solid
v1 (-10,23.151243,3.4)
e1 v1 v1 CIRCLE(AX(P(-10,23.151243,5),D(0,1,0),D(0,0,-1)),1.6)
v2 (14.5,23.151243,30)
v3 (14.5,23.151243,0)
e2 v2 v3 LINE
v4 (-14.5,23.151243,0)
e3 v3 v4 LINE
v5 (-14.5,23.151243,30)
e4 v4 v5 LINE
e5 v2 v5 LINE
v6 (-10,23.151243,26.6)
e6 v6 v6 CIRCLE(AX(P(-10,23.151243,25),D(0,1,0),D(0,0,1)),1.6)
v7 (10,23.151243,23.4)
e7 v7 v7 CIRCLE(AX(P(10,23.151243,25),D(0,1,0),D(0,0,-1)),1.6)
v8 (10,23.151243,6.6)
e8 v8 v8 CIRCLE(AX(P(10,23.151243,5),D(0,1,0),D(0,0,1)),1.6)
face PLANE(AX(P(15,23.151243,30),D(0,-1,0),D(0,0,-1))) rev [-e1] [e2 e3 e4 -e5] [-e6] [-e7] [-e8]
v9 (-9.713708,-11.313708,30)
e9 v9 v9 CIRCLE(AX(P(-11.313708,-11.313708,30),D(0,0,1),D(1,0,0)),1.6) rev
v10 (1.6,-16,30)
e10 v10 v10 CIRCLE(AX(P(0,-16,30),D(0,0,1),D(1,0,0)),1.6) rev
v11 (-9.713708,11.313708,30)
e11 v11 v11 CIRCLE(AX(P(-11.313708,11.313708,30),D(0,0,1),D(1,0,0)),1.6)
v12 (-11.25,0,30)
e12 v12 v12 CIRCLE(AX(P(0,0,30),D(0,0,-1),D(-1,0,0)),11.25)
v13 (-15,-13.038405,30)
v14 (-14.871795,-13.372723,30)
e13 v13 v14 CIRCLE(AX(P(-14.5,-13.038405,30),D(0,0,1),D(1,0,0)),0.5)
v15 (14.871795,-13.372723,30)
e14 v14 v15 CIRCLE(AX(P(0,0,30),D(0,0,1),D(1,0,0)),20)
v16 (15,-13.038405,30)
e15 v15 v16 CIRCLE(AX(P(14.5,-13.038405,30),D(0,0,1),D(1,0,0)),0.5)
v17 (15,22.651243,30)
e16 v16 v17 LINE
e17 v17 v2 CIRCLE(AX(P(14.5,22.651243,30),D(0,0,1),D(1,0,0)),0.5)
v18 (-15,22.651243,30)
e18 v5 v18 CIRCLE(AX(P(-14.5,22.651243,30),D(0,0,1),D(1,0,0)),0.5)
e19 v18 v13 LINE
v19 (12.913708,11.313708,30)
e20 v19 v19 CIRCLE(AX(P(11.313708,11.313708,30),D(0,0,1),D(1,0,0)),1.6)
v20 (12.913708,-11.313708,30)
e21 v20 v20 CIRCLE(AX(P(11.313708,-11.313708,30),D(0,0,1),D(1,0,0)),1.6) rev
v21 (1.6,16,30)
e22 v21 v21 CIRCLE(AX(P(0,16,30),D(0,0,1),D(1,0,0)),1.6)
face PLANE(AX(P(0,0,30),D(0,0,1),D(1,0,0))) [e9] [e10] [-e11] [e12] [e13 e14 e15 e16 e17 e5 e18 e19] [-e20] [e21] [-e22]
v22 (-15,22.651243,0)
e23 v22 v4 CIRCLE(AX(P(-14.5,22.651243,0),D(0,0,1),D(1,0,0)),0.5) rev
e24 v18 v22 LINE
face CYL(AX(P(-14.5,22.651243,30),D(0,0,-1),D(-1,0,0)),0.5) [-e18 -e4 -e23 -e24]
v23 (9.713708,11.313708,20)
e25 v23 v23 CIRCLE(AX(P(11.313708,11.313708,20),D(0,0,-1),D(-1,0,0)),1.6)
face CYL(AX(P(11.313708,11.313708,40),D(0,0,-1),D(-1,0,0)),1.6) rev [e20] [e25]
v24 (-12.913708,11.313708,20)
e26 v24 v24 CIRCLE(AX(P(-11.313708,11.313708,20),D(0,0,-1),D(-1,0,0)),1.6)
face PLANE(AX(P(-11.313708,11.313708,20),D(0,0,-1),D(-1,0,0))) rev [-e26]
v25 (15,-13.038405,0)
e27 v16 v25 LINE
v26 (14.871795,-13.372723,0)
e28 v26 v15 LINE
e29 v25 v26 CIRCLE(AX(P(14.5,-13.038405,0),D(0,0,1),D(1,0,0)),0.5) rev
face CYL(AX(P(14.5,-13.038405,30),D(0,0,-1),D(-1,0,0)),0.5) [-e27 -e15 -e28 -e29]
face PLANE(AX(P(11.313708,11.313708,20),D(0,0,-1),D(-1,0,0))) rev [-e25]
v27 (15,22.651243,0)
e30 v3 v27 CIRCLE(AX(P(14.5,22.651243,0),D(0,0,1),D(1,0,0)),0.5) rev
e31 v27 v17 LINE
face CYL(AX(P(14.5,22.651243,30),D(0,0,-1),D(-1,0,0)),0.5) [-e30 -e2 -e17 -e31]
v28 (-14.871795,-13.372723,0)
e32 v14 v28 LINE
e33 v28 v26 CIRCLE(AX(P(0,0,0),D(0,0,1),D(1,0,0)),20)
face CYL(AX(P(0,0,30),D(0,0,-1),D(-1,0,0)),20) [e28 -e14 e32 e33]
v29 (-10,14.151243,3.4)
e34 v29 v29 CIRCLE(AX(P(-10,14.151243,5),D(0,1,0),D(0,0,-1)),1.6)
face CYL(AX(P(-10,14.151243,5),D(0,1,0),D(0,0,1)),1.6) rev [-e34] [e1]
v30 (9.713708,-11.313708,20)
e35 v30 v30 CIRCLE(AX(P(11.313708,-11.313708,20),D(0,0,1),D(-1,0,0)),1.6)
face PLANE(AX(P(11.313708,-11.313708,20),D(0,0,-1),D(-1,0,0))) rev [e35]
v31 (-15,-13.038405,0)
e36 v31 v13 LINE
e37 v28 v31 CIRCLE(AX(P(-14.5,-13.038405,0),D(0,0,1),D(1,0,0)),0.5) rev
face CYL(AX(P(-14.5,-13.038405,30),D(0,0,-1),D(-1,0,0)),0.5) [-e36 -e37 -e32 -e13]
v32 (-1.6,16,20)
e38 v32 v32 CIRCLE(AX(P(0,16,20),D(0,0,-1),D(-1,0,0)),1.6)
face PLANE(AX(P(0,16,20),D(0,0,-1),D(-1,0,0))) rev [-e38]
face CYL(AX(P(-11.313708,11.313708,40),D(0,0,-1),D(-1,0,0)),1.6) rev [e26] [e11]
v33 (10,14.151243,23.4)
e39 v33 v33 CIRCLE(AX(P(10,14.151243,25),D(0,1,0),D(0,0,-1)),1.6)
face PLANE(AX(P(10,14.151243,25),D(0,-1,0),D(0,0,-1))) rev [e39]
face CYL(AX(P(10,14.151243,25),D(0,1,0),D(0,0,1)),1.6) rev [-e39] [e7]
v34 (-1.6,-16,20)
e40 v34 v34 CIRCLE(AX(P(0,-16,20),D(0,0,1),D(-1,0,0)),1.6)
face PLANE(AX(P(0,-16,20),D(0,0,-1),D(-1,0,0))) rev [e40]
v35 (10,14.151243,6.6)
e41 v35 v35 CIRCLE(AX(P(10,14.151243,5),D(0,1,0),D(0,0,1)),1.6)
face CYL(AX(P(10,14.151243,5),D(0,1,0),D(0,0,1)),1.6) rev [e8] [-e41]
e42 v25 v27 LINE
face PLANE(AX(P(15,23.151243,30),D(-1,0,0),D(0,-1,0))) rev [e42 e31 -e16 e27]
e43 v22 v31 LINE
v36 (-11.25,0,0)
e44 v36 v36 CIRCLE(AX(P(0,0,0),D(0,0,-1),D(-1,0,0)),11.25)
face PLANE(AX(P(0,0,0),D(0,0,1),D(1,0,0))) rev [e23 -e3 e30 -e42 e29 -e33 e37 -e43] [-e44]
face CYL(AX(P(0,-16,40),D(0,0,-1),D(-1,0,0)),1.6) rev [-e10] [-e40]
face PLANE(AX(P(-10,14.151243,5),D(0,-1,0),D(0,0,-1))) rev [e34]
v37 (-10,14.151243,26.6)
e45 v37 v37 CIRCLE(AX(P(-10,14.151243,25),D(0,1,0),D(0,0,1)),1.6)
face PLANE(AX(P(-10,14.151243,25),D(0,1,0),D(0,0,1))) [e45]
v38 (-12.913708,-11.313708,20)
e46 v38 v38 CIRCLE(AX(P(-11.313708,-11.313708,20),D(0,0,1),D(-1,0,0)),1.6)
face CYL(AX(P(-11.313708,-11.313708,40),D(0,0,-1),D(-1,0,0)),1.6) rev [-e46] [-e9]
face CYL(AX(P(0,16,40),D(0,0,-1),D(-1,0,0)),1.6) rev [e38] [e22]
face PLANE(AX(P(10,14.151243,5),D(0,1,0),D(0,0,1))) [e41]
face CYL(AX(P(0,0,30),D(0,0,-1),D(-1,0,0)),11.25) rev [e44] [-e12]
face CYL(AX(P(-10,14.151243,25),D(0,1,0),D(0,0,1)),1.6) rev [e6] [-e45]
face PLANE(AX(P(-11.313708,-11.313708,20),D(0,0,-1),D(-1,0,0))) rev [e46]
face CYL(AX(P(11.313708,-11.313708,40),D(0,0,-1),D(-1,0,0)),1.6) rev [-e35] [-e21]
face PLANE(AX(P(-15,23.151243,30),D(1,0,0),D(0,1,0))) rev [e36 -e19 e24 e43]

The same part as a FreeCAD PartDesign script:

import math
import FreeCAD as App
import Part
import Sketcher

V = App.Vector
Q = App.Units.Quantity


def edges_at(feature, points):
    """Names of the edges that pass closest to the given points."""
    edges = feature.Shape.Edges
    near = lambda p: min(range(len(edges)), key=lambda i: edges[i].distToShape(Part.Vertex(*p))[0])
    return sorted({f"Edge{near(p) + 1}" for p in points})

doc = App.newDocument("Part")
body = doc.addObject("PartDesign::Body", "Body")

# Sketch on XY plane
sketch1 = doc.addObject("Sketcher::SketchObject", "Sketch")
body.addObject(sketch1)
sketch1.AttachmentSupport = (doc.XY_Plane, [""])
sketch1.MapMode = "FlatFace"
sketch1.addGeometry([
    Part.LineSegment(V(-15, 23, 0), V(-15, -13, 0)),
    Part.ArcOfCircle(Part.Circle(V(0, 0, 0), V(0, 0, 1), 20), math.radians(-139), math.radians(-41)),
    Part.LineSegment(V(15, -13, 0), V(15, 23, 0)),
    Part.LineSegment(V(15, 23, 0), V(-15, 23, 0)),
], False)
sketch1.addConstraint([
    Sketcher.Constraint("Coincident", 0, 2, 1, 1),
    Sketcher.Constraint("Coincident", 1, 2, 2, 1),
    Sketcher.Constraint("Coincident", 2, 2, 3, 1),
    Sketcher.Constraint("Coincident", 3, 2, 0, 1),
    Sketcher.Constraint("Vertical", 0),
    Sketcher.Constraint("Vertical", 2),
    Sketcher.Constraint("Horizontal", 3),
    Sketcher.Constraint("Coincident", 1, 3, -1, 1),
    Sketcher.Constraint("Horizontal", 0, 2, 1, 2),
    Sketcher.Constraint("Radius", 1, Q("20 mm")),
    Sketcher.Constraint("DistanceX", 3, 2, 3, 1, Q("30 mm")),
    Sketcher.Constraint("DistanceY", 0, 2, 0, 1, Q("36.38 mm")),
])
pad1 = doc.addObject("PartDesign::Pad", "Pad")
body.addObject(pad1)
pad1.Profile = sketch1
pad1.Length = 30

# Sketch on XY plane
sketch2 = doc.addObject("Sketcher::SketchObject", "Sketch001")
body.addObject(sketch2)
sketch2.AttachmentSupport = (doc.XY_Plane, [""])
sketch2.MapMode = "FlatFace"
sketch2.AttachmentOffset = App.Placement(V(0, 0, 20), App.Rotation())
sketch2.addGeometry([
    Part.Circle(V(11.3, 11.3, 0), V(0, 0, 1), 1.6),
    Part.Circle(V(0, 16, 0), V(0, 0, 1), 1.6),
    Part.Circle(V(-11.3, 11.3, 0), V(0, 0, 1), 1.6),
], False)
sketch2.addConstraint([
    Sketcher.Constraint("Equal", 0, 1),
    Sketcher.Constraint("Equal", 1, 2),
    Sketcher.Constraint("Symmetric", 0, 3, 2, 3, -2),
    Sketcher.Constraint("PointOnObject", 1, 3, -2),
    Sketcher.Constraint("Diameter", 0, Q("3.2 mm")),
    Sketcher.Constraint("DistanceY", -1, 1, 1, 3, Q("16 mm")),
    Sketcher.Constraint("DistanceX", -1, 1, 0, 3, Q("11.313708 mm")),
    Sketcher.Constraint("DistanceY", -1, 1, 0, 3, Q("11.313708 mm")),
])
pocket1 = doc.addObject("PartDesign::Pocket", "Pocket")
body.addObject(pocket1)
pocket1.Profile = sketch2
pocket1.Length = 20
pocket1.Reversed = True
doc.recompute()

mirrored = doc.addObject("PartDesign::Mirrored", "Mirrored")
body.addObject(mirrored)
mirrored.Originals = [pocket1]
mirrored.MirrorPlane = (doc.XZ_Plane, [""])
body.Tip = mirrored

# Sketch on XY plane
sketch3 = doc.addObject("Sketcher::SketchObject", "Sketch002")
body.addObject(sketch3)
sketch3.AttachmentSupport = (doc.XY_Plane, [""])
sketch3.MapMode = "FlatFace"
sketch3.addGeometry(Part.Circle(V(0, 0, 0), V(0, 0, 1), 11), False)
sketch3.addConstraint([
    Sketcher.Constraint("Coincident", 0, 3, -1, 1),
    Sketcher.Constraint("Diameter", 0, Q("22.5 mm")),
])
pocket2 = doc.addObject("PartDesign::Pocket", "Pocket001")
body.addObject(pocket2)
pocket2.Profile = sketch3
pocket2.Length = 30
pocket2.Reversed = True

# Sketch on XZ plane
sketch4 = doc.addObject("Sketcher::SketchObject", "Sketch003")
body.addObject(sketch4)
sketch4.AttachmentSupport = (doc.XZ_Plane, [""])
sketch4.MapMode = "FlatFace"
sketch4.AttachmentOffset = App.Placement(V(0, 0, -23.151243), App.Rotation())
sketch4.addGeometry([
    Part.Circle(V(10, 25, 0), V(0, 0, 1), 1.6),
    Part.Circle(V(-10, 25, 0), V(0, 0, 1), 1.6),
    Part.Circle(V(10, 5, 0), V(0, 0, 1), 1.6),
    Part.Circle(V(-10, 5, 0), V(0, 0, 1), 1.6),
], False)
sketch4.addConstraint([
    Sketcher.Constraint("Equal", 0, 1),
    Sketcher.Constraint("Equal", 1, 2),
    Sketcher.Constraint("Equal", 2, 3),
    Sketcher.Constraint("Symmetric", 0, 3, 1, 3, -2),
    Sketcher.Constraint("Symmetric", 2, 3, 3, 3, -2),
    Sketcher.Constraint("Vertical", 0, 3, 2, 3),
    Sketcher.Constraint("Diameter", 0, Q("3.2 mm")),
    Sketcher.Constraint("DistanceX", -1, 1, 0, 3, Q("10 mm")),
    Sketcher.Constraint("DistanceY", -1, 1, 0, 3, Q("25 mm")),
    Sketcher.Constraint("DistanceY", -1, 1, 2, 3, Q("5 mm")),
])
pocket3 = doc.addObject("PartDesign::Pocket", "Pocket002")
body.addObject(pocket3)
pocket3.Profile = sketch4
pocket3.Length = 9
pocket3.Reversed = True
doc.recompute()

fillet = doc.addObject("PartDesign::Fillet", "Fillet")
body.addObject(fillet)
fillet.Base = (pocket3, edges_at(pocket3, [
    (15, 23.151, 15),
    (15, -13.229, 15),
    (-15, -13.229, 15),
    (-15, 23.151, 15),
]))
fillet.Radius = 0.5

doc.recompute()
